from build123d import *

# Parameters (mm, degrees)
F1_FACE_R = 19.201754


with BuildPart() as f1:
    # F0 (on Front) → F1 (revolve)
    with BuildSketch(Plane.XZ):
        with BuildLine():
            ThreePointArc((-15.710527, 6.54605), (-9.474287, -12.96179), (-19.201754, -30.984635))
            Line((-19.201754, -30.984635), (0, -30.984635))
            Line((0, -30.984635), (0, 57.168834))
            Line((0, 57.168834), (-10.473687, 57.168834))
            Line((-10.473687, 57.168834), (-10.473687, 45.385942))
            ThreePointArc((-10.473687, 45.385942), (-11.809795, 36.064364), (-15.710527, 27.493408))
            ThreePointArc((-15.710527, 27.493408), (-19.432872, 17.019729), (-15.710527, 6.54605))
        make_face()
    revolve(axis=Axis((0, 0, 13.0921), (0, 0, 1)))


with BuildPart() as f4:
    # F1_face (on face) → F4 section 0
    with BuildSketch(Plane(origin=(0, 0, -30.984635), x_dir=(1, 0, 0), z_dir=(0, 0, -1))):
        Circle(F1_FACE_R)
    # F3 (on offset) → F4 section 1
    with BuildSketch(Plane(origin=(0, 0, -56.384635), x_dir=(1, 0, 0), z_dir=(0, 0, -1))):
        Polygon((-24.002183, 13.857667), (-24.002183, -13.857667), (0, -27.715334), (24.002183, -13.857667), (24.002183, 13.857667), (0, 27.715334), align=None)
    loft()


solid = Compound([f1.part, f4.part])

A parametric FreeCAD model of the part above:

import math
import FreeCAD as App
import Part
import Sketcher
Q = App.Units.Quantity


def add_polygon(sketch, points):
    """Adds a closed chain of lines whose ends are joined by coincident constraints."""
    first, n = sketch.GeometryCount, len(points)
    for a, b in zip(points, points[1:] + points[:1]):
        sketch.addGeometry(Part.LineSegment(App.Vector(*a, 0), App.Vector(*b, 0)), False)
    for i in range(n):
        sketch.addConstraint(Sketcher.Constraint("Coincident", first + i, 2, first + (i + 1) % n, 1))

doc = App.newDocument("Part")
body = doc.addObject("PartDesign::Body", "Body")

sketch1 = body.newObject("Sketcher::SketchObject", "Sketch")
sketch1.AttachmentSupport = (doc.getObject("XZ_Plane"), [""])
sketch1.MapMode = "FlatFace"
sketch1.addGeometry(Part.ArcOfCircle(Part.Circle(App.Vector(-36, -11, 0), App.Vector(0, 0, 1), 26), math.radians(-51), math.radians(41)), False)
sketch1.addGeometry(Part.LineSegment(App.Vector(-19, -31, 0), App.Vector(0, -31, 0)), False)
sketch1.addGeometry(Part.LineSegment(App.Vector(0, -31, 0), App.Vector(0, 57, 0)), False)
sketch1.addGeometry(Part.LineSegment(App.Vector(0, 57, 0), App.Vector(-10, 57, 0)), False)
sketch1.addGeometry(Part.LineSegment(App.Vector(-10, 57, 0), App.Vector(-10, 45, 0)), False)
sketch1.addGeometry(Part.ArcOfCircle(Part.Circle(App.Vector(-44, 45, 0), App.Vector(0, 0, 1), 33), math.radians(-33), math.radians(0)), False)
sketch1.addGeometry(Part.ArcOfCircle(Part.Circle(App.Vector(-3, 17, 0), App.Vector(0, 0, 1), 17), math.radians(141), math.radians(219)), False)
sketch1.addConstraint(Sketcher.Constraint("Coincident", 0, 1, 1, 1))
sketch1.addConstraint(Sketcher.Constraint("Coincident", 1, 2, 2, 1))
sketch1.addConstraint(Sketcher.Constraint("Coincident", 2, 2, 3, 1))
sketch1.addConstraint(Sketcher.Constraint("Coincident", 3, 2, 4, 1))
sketch1.addConstraint(Sketcher.Constraint("Tangent", 4, 2, 5, 2))
sketch1.addConstraint(Sketcher.Constraint("Coincident", 5, 1, 6, 1))
sketch1.addConstraint(Sketcher.Constraint("Coincident", 6, 2, 0, 2))
sketch1.addConstraint(Sketcher.Constraint("Horizontal", 1))
sketch1.addConstraint(Sketcher.Constraint("Vertical", 2))
sketch1.addConstraint(Sketcher.Constraint("Horizontal", 3))
sketch1.addConstraint(Sketcher.Constraint("Vertical", 4))
sketch1.addConstraint(Sketcher.Constraint("PointOnObject", 1, 2, -2))
sketch1.addConstraint(Sketcher.Constraint("Vertical", 5, 1, 6, 2))
sketch1.addConstraint(Sketcher.Constraint("Radius", 0, Q("26.162058 mm")))
sketch1.addConstraint(Sketcher.Constraint("Radius", 5, Q("33.184837 mm")))
sketch1.addConstraint(Sketcher.Constraint("Radius", 6, Q("16.596232 mm")))
sketch1.addConstraint(Sketcher.Constraint("DistanceY", 2, 1, 2, 2, Q("88.153469 mm")))
sketch1.addConstraint(Sketcher.Constraint("DistanceY", 4, 2, 4, 1, Q("11.782892 mm")))
sketch1.addConstraint(Sketcher.Constraint("DistanceY", 0, 3, 6, 3, Q("27.558301 mm")))
sketch1.addConstraint(Sketcher.Constraint("DistanceX", 1, 1, 1, 2, Q("19.201754 mm")))
sketch1.addConstraint(Sketcher.Constraint("DistanceX", 3, 2, 3, 1, Q("10.473687 mm")))
sketch1.addConstraint(Sketcher.Constraint("DistanceX", 0, 3, -1, 1, Q("35.52388 mm")))
sketch1.addConstraint(Sketcher.Constraint("DistanceY", -1, 1, 6, 3, Q("17.019729 mm")))
revolution = body.newObject("PartDesign::Revolution", "Revolution")
revolution.Profile = sketch1
revolution.ReferenceAxis = (sketch1, ["V_Axis"])
revolution.Angle = 360
body2 = doc.addObject("PartDesign::Body", "Body001")

sketch2 = body2.newObject("Sketcher::SketchObject", "Sketch001")
sketch2.AttachmentSupport = (doc.getObject("XY_Plane001"), [""])
sketch2.MapMode = "FlatFace"
sketch2.AttachmentOffset = App.Placement(App.Vector(0, 0, -30.984635), App.Rotation())
sketch2.addGeometry(Part.Circle(App.Vector(0, 0, 0), App.Vector(0, 0, 1), 19), False)
sketch2.addConstraint(Sketcher.Constraint("Coincident", 0, 3, -1, 1))
sketch2.addConstraint(Sketcher.Constraint("Diameter", 0, Q("38.403508 mm")))

sketch3 = body2.newObject("Sketcher::SketchObject", "Sketch002")
sketch3.AttachmentSupport = (doc.getObject("XY_Plane001"), [""])
sketch3.MapMode = "FlatFace"
sketch3.AttachmentOffset = App.Placement(App.Vector(0, 0, -56.384635), App.Rotation())
add_polygon(sketch3, [(-24, -14), (-24, 14), (0, 28), (24, 14), (24, -14), (0, -28)])
sketch3.addConstraint(Sketcher.Constraint("Vertical", 0))
sketch3.addConstraint(Sketcher.Constraint("Vertical", 3))
sketch3.addConstraint(Sketcher.Constraint("Symmetric", 0, 2, 3, 2, -1, 1))
sketch3.addConstraint(Sketcher.Constraint("Symmetric", 1, 2, 4, 2, -1, 1))
sketch3.addConstraint(Sketcher.Constraint("PointOnObject", 1, 2, -2))
sketch3.addConstraint(Sketcher.Constraint("Parallel", 2, 5))
sketch3.addConstraint(Sketcher.Constraint("Horizontal", 0, 2, 2, 2))
sketch3.addConstraint(Sketcher.Constraint("Angle", 1, Q("30 deg")))
sketch3.addConstraint(Sketcher.Constraint("DistanceY", 3, 2, 1, 2, Q("41.573001 mm")))
sketch3.addConstraint(Sketcher.Constraint("DistanceY", 0, 1, 0, 2, Q("27.715334 mm")))

additiveloft = body2.newObject("PartDesign::AdditiveLoft", "AdditiveLoft")
additiveloft.Profile = sketch2
additiveloft.Sections = [sketch3]

doc.recompute()
